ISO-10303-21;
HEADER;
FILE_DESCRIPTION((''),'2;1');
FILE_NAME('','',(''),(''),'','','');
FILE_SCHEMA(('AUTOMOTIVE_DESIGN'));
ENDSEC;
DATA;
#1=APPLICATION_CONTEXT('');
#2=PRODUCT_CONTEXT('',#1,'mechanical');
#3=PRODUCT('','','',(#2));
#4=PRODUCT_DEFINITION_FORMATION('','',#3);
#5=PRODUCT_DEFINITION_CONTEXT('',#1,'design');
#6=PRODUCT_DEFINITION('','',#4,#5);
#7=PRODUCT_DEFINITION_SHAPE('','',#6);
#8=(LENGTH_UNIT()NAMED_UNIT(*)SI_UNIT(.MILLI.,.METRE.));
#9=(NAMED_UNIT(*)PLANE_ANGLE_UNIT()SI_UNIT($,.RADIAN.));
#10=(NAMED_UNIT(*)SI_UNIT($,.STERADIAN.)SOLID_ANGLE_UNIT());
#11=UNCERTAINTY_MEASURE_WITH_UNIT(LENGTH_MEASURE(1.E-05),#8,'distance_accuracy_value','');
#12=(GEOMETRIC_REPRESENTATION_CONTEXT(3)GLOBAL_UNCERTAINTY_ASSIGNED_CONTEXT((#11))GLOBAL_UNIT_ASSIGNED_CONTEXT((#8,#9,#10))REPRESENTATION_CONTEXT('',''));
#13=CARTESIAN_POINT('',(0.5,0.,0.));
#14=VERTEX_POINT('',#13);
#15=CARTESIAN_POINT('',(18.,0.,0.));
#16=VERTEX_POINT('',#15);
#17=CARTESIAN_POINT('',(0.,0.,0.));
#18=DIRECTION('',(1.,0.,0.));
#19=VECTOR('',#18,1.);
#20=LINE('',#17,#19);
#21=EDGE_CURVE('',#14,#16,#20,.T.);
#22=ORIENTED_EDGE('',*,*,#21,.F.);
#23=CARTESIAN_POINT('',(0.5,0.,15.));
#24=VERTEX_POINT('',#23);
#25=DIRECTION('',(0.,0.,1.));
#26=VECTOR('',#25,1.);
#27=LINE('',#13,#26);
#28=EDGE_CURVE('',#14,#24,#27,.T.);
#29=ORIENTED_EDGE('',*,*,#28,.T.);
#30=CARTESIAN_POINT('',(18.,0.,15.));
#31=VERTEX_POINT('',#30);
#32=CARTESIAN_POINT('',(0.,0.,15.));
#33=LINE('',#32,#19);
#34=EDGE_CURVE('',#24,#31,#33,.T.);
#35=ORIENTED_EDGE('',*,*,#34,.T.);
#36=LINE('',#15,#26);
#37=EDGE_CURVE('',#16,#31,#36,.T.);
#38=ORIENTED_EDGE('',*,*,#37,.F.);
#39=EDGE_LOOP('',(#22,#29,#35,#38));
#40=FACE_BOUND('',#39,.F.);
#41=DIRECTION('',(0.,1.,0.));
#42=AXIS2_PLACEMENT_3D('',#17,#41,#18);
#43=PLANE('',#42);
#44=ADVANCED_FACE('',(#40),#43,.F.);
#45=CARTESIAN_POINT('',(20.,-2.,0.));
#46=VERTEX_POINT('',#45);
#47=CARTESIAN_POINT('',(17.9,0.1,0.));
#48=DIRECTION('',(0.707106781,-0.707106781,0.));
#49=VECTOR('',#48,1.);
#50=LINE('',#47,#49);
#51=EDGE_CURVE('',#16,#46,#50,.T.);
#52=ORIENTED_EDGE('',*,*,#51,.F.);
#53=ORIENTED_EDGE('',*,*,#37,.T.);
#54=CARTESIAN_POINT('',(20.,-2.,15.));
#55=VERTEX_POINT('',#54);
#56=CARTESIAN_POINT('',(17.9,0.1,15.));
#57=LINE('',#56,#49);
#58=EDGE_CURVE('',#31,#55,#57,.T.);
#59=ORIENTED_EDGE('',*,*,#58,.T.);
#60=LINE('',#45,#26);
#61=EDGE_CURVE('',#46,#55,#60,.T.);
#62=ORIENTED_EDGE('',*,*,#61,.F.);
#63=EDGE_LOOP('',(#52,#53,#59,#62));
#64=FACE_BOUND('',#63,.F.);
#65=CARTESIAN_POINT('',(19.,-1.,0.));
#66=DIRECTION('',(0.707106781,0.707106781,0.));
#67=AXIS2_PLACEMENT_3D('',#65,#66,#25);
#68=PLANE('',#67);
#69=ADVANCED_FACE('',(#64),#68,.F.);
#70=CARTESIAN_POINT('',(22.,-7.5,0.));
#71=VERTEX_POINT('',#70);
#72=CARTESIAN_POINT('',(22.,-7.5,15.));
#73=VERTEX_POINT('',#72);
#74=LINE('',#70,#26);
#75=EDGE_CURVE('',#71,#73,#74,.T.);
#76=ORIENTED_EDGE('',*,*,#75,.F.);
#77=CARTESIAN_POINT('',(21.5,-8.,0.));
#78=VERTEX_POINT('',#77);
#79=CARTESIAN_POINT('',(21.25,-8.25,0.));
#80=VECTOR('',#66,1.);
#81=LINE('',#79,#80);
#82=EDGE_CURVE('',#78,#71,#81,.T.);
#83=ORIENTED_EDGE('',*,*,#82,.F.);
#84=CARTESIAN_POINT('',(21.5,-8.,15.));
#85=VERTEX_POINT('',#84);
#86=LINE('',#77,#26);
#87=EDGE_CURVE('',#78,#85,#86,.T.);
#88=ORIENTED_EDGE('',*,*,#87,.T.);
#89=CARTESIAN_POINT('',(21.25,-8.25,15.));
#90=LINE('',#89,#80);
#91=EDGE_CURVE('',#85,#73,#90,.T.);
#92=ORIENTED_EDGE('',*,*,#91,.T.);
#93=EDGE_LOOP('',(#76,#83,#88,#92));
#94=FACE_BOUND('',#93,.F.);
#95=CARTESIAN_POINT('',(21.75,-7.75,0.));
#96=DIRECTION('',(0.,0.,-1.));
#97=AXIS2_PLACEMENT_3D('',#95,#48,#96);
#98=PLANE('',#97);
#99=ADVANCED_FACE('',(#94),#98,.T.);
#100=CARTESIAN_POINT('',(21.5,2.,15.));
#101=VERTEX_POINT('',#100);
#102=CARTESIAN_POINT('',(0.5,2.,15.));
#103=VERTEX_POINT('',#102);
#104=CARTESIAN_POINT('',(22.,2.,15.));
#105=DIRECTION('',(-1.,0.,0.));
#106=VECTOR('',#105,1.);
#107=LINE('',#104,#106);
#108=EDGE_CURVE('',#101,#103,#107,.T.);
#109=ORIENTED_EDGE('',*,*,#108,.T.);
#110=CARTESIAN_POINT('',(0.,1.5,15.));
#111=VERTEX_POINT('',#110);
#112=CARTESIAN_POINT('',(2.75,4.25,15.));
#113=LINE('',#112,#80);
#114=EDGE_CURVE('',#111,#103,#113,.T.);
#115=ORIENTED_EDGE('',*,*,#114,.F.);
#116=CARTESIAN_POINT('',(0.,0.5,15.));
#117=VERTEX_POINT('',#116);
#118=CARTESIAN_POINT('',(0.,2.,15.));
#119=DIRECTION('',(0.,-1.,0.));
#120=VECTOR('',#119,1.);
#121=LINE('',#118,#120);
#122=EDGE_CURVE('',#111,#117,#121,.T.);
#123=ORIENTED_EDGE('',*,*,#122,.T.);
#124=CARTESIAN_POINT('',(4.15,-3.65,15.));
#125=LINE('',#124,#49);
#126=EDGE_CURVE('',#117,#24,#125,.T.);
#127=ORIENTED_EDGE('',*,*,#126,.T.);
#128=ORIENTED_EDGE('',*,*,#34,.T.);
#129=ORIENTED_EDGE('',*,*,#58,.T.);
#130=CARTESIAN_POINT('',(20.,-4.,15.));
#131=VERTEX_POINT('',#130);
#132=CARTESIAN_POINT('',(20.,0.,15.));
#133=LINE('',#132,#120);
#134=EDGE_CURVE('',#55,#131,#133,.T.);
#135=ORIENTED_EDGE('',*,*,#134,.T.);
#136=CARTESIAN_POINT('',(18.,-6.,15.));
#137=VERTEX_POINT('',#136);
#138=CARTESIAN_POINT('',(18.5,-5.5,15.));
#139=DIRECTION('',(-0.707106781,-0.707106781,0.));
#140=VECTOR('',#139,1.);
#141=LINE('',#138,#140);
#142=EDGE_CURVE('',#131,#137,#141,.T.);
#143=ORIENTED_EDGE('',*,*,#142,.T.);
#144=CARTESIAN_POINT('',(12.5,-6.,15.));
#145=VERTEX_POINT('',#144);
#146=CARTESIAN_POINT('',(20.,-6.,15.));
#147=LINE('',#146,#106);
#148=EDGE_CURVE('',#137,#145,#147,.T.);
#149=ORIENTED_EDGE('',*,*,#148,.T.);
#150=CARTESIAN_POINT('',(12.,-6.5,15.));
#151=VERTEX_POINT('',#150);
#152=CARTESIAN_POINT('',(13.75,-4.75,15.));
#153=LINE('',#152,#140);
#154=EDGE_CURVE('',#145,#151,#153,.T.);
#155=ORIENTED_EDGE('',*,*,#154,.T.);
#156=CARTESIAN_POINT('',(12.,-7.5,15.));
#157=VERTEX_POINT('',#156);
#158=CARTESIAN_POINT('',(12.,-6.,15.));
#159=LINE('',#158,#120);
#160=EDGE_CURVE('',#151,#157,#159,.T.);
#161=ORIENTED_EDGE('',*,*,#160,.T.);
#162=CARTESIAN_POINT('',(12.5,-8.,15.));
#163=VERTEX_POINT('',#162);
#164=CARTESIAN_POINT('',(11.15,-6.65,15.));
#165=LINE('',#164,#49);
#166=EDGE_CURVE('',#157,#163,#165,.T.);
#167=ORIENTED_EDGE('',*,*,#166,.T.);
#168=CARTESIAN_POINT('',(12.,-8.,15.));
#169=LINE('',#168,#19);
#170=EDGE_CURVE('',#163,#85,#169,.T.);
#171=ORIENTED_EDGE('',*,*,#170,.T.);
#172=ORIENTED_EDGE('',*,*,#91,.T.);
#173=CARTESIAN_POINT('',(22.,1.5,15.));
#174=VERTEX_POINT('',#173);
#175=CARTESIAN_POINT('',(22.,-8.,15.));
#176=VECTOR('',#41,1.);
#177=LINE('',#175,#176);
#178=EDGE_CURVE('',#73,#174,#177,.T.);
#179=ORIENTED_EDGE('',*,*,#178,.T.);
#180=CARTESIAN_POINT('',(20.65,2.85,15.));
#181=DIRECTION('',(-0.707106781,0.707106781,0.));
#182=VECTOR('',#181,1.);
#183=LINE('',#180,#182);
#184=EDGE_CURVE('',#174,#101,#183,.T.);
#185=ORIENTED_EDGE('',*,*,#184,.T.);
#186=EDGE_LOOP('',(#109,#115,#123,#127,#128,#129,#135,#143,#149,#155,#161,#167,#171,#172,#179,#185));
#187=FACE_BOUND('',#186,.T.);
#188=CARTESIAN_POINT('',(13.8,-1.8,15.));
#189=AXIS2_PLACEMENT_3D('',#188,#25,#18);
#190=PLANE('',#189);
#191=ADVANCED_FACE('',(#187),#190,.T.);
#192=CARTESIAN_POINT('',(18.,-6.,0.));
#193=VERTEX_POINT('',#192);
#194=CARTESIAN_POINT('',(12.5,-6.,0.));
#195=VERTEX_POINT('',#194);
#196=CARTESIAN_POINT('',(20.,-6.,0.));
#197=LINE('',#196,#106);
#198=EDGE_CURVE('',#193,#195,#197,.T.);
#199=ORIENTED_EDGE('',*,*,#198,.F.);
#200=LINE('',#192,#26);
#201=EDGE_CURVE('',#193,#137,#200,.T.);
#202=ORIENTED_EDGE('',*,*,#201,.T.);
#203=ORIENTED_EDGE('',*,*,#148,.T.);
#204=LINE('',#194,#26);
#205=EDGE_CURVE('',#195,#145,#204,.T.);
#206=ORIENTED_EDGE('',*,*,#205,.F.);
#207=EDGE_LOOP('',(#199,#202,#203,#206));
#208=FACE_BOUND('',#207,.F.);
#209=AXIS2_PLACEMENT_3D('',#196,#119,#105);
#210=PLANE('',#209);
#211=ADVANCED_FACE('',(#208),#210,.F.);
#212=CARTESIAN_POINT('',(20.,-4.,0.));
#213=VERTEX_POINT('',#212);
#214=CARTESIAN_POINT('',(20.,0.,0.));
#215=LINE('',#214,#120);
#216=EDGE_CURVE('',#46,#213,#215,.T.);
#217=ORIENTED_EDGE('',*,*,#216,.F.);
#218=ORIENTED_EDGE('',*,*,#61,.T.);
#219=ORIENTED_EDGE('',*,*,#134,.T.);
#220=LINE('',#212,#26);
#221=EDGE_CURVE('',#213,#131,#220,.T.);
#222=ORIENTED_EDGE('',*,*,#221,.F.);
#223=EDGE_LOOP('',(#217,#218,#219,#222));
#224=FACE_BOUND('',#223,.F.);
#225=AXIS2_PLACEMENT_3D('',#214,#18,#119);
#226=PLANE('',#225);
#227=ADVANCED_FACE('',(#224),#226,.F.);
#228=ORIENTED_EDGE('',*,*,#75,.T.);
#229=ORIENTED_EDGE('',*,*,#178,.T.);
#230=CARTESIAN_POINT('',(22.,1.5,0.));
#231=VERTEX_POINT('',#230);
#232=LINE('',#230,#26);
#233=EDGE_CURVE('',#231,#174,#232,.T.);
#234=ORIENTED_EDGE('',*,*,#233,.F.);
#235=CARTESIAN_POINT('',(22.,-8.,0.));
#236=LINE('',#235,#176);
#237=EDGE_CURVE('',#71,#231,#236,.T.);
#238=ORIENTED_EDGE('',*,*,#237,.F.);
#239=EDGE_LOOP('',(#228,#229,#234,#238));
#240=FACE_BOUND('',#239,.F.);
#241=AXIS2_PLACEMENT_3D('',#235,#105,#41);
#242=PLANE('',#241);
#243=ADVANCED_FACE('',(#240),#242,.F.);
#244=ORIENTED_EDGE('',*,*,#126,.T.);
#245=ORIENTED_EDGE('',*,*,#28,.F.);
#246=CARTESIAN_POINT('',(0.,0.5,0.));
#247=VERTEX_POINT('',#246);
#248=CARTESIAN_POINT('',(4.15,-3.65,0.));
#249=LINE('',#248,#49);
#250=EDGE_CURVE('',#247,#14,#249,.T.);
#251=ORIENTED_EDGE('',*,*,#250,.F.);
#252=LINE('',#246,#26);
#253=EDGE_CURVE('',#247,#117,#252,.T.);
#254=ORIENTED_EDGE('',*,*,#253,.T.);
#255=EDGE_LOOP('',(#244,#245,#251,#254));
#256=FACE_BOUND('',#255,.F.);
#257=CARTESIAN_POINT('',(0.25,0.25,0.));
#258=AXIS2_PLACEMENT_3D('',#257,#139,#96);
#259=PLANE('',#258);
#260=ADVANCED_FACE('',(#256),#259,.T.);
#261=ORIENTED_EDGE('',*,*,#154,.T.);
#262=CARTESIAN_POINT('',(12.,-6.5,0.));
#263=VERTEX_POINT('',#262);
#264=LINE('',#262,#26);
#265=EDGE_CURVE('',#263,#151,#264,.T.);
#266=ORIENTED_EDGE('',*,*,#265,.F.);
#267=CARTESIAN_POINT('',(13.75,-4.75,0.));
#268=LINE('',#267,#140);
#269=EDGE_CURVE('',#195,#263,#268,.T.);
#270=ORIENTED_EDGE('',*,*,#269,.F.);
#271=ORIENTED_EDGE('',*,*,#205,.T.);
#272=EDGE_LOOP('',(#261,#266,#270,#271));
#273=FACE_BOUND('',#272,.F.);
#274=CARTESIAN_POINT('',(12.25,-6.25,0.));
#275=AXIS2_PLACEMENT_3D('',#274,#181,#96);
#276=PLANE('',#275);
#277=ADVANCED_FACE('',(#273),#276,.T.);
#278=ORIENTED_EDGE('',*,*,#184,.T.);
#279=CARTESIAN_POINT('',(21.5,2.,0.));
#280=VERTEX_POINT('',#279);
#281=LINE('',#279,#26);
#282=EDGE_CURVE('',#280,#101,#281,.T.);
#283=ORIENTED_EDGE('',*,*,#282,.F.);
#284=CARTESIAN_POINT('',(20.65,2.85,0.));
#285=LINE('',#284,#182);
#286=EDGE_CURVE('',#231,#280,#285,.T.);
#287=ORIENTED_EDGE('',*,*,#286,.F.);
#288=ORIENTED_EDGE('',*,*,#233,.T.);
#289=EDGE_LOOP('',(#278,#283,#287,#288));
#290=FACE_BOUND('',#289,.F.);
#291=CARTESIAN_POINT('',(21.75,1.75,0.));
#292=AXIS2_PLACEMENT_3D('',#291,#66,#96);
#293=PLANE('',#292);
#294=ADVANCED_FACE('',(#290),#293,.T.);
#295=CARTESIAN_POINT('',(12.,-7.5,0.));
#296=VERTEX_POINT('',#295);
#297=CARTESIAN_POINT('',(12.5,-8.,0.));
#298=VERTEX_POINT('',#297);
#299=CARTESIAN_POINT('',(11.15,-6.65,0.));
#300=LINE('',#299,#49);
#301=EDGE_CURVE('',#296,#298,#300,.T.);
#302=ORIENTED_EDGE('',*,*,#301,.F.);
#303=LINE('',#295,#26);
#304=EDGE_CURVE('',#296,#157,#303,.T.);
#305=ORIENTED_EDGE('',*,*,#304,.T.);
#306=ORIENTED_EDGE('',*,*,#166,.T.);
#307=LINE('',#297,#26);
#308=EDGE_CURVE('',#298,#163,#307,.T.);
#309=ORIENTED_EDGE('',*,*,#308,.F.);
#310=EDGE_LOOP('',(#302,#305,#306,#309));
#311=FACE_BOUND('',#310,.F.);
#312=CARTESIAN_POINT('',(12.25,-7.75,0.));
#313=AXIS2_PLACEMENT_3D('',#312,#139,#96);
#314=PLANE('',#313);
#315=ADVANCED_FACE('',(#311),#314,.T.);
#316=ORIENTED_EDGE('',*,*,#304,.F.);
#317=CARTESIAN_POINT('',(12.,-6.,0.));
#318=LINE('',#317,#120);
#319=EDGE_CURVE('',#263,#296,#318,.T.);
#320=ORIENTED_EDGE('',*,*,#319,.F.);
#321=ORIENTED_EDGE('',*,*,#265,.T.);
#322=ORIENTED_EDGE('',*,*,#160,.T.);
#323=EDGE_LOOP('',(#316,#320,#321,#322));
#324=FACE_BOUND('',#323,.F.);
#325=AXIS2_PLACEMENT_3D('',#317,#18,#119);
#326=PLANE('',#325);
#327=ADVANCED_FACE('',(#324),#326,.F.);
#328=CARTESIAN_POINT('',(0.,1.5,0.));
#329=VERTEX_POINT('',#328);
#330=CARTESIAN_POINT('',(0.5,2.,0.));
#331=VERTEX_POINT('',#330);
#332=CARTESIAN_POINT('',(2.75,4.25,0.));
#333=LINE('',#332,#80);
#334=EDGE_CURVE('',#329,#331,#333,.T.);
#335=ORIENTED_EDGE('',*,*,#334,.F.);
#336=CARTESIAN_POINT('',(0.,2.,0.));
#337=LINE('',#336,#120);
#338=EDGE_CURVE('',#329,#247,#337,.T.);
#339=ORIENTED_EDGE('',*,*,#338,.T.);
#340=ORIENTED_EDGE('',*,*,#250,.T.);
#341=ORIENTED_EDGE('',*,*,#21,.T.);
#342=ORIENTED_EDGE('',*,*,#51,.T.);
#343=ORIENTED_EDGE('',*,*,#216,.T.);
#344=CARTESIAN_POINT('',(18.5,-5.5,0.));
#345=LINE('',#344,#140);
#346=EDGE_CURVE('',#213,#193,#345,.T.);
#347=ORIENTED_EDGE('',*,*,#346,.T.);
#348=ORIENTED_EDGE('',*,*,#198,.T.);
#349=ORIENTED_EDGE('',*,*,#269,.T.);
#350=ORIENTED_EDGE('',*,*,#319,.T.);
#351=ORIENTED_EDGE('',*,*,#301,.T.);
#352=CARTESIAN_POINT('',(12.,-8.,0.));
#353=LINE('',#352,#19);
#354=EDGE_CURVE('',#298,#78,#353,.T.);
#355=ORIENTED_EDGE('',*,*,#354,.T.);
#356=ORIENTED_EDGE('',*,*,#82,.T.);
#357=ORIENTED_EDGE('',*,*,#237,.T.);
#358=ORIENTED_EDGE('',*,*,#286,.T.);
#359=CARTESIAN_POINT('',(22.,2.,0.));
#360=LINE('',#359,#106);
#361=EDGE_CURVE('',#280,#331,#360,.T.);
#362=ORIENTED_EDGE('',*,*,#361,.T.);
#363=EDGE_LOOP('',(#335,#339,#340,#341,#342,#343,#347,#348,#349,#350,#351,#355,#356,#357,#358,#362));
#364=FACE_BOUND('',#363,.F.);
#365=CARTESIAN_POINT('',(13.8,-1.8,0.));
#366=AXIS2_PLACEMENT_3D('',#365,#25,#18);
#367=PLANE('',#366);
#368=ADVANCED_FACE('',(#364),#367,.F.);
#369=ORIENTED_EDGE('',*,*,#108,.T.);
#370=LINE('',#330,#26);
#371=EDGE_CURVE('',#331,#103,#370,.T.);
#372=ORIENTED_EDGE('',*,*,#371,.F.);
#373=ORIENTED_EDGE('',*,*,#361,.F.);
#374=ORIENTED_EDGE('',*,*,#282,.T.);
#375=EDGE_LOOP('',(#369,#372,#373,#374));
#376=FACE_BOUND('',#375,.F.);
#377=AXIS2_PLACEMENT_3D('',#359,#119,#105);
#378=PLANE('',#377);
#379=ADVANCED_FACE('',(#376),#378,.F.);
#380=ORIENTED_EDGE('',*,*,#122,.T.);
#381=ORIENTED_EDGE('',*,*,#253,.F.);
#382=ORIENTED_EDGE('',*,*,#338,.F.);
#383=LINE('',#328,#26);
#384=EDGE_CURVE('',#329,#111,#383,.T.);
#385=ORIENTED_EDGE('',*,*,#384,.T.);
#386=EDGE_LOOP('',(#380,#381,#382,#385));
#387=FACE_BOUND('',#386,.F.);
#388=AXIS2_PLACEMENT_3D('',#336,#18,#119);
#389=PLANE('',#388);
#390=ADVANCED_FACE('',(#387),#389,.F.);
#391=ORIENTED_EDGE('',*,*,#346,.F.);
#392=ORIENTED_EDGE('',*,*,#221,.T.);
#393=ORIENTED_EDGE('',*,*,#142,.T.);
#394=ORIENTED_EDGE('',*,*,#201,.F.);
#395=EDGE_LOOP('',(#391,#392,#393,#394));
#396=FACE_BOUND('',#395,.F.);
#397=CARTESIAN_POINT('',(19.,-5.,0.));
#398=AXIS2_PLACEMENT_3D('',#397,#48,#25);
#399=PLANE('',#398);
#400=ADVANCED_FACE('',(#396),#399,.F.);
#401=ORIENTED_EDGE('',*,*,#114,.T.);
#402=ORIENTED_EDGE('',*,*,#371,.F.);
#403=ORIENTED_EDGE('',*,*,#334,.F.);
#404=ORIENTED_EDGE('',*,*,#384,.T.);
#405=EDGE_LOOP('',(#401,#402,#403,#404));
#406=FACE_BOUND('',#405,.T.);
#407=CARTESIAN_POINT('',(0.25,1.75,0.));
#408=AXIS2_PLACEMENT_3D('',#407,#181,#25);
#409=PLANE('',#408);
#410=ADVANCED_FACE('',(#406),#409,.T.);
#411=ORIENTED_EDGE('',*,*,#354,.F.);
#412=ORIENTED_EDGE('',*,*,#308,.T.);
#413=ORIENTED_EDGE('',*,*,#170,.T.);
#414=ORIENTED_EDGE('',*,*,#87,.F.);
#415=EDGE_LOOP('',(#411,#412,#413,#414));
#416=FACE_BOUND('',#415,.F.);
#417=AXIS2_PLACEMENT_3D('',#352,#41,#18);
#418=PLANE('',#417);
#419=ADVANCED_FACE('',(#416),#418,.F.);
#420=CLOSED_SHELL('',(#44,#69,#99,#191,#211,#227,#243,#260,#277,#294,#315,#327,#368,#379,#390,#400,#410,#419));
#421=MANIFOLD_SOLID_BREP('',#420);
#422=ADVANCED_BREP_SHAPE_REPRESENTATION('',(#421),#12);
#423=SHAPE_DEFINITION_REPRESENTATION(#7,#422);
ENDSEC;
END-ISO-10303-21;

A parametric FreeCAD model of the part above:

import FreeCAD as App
import Part
import Sketcher
from FreeCAD import Vector
Q = App.Units.Quantity


def edges_at(feature, points):
    """Names of the edges that pass closest to the given points."""
    edges = feature.Shape.Edges
    near = lambda p: min(range(len(edges)), key=lambda i: edges[i].distToShape(Part.Vertex(*p))[0])
    return sorted({f"Edge{near(p) + 1}" for p in points})


def add_polygon(sketch, points):
    """Adds a closed chain of lines whose ends are joined by coincident constraints."""
    first, n = sketch.GeometryCount, len(points)
    for a, b in zip(points, points[1:] + points[:1]):
        sketch.addGeometry(Part.LineSegment(App.Vector(*a, 0), App.Vector(*b, 0)), False)
    for i in range(n):
        sketch.addConstraint(Sketcher.Constraint("Coincident", first + i, 2, first + (i + 1) % n, 1))

doc = App.newDocument("Part")
params = doc.addObject("Spreadsheet::Sheet", "Params")
for row, (alias, value) in enumerate([
    ("sketch1_width", "20 mm"),
    ("sketch1_width2", "8 mm"),
    ("sketch1_width3", "10 mm"),
    ("sketch1_height", "2 mm"),
    ("pad1_length", "15 mm"),
    ("chamfer_size", "0.5 mm"),
    ("chamfer2_size", "2 mm"),
], start=1):
    params.set(f"A{row}", alias)
    params.set(f"B{row}", "=" + value)
    params.setAlias(f"B{row}", alias)

body = doc.addObject("PartDesign::Body", "Body")

sketch1 = body.newObject("Sketcher::SketchObject", "Sketch")
sketch1.AttachmentSupport = (doc.getObject("XY_Plane"), [""])
sketch1.MapMode = "FlatFace"
add_polygon(sketch1, [(0, 2), (0, 0), (20, 0), (20, -6), (12, -6), (12, -8), (22, -8), (22, 2)])
sketch1.addConstraint([
    Sketcher.Constraint("Vertical", 0),
    Sketcher.Constraint("Horizontal", 1),
    Sketcher.Constraint("Vertical", 2),
    Sketcher.Constraint("Horizontal", 3),
    Sketcher.Constraint("Vertical", 4),
    Sketcher.Constraint("Horizontal", 5),
    Sketcher.Constraint("Vertical", 6),
    Sketcher.Constraint("Horizontal", 7),
    Sketcher.Constraint("Coincident", 0, 2, -1, 1),
    Sketcher.Constraint("Equal", 0, 4),
    Sketcher.Constraint("Equal", 5, 6),
    Sketcher.Constraint("DistanceX", 1, 1, 1, 2, Q("20 mm")),
    Sketcher.Constraint("DistanceX", 3, 2, 3, 1, Q("8 mm")),
    Sketcher.Constraint("DistanceX", 5, 1, 5, 2, Q("10 mm")),
    Sketcher.Constraint("DistanceY", 0, 2, 0, 1, Q("2 mm")),
])
sketch1.setExpression("Constraints[19]", "Params.sketch1_width")
sketch1.setExpression("Constraints[20]", "Params.sketch1_width2")
sketch1.setExpression("Constraints[21]", "Params.sketch1_width3")
sketch1.setExpression("Constraints[22]", "Params.sketch1_height")
pad1 = body.newObject("PartDesign::Pad", "Pad")
pad1.Profile = sketch1
pad1.setExpression("Length", "Params.pad1_length")
doc.recompute()

chamfer = body.newObject("PartDesign::Chamfer", "Chamfer")
chamfer.Base = (pad1, edges_at(pad1, [
    (0, 2, 7.5),
    (0, 0, 7.5),
    (12, -8, 7.5),
    (12, -6, 7.5),
    (22, -8, 7.5),
    (22, 2, 7.5),
]))
chamfer.setExpression("Size", "Params.chamfer_size")
doc.recompute()

chamfer2 = body.newObject("PartDesign::Chamfer", "Chamfer001")
chamfer2.Base = (chamfer, edges_at(chamfer, [(20, 0, 7.5), (20, -6, 7.5)]))
chamfer2.setExpression("Size", "Params.chamfer2_size")

doc.recompute()
